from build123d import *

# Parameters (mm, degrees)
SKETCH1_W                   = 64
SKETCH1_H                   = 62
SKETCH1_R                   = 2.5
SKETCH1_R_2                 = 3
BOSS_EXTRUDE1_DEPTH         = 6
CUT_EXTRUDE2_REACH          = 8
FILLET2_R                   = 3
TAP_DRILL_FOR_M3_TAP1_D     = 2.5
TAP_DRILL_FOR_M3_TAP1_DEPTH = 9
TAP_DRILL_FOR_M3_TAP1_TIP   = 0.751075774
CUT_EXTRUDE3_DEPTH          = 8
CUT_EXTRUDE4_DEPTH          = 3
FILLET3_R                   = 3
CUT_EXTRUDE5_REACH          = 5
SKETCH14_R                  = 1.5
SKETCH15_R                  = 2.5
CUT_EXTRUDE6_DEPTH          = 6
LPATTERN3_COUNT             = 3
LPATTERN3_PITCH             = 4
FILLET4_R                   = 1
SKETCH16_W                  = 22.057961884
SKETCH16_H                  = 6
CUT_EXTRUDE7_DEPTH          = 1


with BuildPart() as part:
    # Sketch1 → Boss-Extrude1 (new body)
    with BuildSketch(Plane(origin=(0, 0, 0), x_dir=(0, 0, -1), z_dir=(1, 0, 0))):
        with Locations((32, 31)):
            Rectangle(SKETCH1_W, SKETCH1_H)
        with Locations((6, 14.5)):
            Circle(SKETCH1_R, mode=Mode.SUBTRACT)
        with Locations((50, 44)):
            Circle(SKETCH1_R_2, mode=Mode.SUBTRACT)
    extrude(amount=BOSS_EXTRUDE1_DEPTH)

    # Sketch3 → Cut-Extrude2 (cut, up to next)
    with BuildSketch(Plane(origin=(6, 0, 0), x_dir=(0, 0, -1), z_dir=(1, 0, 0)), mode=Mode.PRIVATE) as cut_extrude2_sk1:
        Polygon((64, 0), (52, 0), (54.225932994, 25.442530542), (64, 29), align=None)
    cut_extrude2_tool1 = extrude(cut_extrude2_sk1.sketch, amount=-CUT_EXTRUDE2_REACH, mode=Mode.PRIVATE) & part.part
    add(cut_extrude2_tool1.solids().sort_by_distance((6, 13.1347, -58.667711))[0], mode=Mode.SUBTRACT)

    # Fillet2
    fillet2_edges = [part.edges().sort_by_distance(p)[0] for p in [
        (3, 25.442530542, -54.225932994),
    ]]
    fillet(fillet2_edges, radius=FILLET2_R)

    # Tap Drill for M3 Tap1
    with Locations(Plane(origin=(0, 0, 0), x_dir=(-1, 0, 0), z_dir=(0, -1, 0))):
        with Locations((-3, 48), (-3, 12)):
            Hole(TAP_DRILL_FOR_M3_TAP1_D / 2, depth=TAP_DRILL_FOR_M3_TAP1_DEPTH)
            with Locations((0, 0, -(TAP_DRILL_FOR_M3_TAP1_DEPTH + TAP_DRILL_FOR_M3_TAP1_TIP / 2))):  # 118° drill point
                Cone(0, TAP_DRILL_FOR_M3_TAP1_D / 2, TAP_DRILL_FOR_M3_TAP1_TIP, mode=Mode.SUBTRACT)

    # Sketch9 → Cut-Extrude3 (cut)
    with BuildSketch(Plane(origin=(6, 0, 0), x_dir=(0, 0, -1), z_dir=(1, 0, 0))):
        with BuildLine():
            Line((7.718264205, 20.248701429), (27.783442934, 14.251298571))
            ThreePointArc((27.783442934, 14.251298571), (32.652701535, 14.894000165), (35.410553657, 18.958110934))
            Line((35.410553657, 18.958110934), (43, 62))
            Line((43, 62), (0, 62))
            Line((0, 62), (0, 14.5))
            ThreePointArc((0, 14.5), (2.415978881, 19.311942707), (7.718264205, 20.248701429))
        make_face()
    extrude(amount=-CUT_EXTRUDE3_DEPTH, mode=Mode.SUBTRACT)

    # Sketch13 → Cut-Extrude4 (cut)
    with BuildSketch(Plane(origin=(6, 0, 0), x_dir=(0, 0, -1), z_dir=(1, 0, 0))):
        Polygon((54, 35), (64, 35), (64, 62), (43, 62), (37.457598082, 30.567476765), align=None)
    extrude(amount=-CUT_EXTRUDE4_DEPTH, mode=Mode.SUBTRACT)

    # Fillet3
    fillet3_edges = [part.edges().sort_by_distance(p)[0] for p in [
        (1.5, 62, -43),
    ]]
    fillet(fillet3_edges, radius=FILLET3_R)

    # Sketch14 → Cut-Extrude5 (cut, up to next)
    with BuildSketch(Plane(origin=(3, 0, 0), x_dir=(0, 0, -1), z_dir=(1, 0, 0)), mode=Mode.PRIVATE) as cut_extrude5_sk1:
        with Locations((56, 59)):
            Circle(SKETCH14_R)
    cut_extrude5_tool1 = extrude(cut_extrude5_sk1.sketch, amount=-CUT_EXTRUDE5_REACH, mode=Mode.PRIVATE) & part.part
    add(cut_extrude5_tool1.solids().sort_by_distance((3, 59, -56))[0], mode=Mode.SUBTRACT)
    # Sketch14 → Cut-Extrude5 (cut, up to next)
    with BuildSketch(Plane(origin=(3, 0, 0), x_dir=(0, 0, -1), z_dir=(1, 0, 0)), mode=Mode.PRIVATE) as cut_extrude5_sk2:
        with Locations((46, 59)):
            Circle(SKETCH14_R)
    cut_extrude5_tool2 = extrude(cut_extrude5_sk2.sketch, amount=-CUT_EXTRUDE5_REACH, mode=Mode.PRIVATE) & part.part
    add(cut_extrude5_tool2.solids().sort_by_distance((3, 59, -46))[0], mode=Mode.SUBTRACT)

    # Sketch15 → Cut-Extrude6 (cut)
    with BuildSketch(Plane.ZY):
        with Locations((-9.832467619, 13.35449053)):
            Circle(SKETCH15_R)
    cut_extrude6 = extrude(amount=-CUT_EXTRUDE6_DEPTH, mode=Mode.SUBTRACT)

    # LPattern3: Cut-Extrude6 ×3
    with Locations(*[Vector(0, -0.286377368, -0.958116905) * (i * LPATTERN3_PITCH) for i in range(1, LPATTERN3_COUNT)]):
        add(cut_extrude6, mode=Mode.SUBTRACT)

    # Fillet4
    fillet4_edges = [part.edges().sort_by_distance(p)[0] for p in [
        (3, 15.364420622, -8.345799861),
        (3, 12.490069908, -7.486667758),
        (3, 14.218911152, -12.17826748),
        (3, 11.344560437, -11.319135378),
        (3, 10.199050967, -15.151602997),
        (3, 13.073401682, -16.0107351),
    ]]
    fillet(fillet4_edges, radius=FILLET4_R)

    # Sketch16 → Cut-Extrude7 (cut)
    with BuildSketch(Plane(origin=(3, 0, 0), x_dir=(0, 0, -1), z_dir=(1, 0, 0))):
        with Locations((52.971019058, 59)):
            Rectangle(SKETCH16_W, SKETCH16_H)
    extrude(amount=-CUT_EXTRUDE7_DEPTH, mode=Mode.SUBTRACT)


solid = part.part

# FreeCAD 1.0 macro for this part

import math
import FreeCAD as App
import Part
import Sketcher
from FreeCAD import Vector
Q = App.Units.Quantity


def edges_at(feature, points):
    """Names of the edges that pass closest to the given points."""
    edges = feature.Shape.Edges
    near = lambda p: min(range(len(edges)), key=lambda i: edges[i].distToShape(Part.Vertex(*p))[0])
    return sorted({f"Edge{near(p) + 1}" for p in points})


def add_polygon(sketch, points):
    """Adds a closed chain of lines whose ends are joined by coincident constraints."""
    first, n = sketch.GeometryCount, len(points)
    for a, b in zip(points, points[1:] + points[:1]):
        sketch.addGeometry(Part.LineSegment(App.Vector(*a, 0), App.Vector(*b, 0)), False)
    for i in range(n):
        sketch.addConstraint(Sketcher.Constraint("Coincident", first + i, 2, first + (i + 1) % n, 1))

doc = App.newDocument("Part")
body = doc.addObject("PartDesign::Body", "Body")

# Sketch on YZ plane
sketch1 = body.newObject("Sketcher::SketchObject", "Sketch")
sketch1.AttachmentSupport = (doc.getObject("YZ_Plane"), [""])
sketch1.MapMode = "FlatFace"
add_polygon(sketch1, [(62, 0), (0, 0), (0, -64), (62, -64)])  # lines 0-3
sketch1.addGeometry(Part.Circle(Vector(14.5, -6, 0), Vector(0, 0, 1), 2.5), False)  # 4
sketch1.addGeometry(Part.Circle(Vector(44, -50, 0), Vector(0, 0, 1), 3), False)  # 5
sketch1.addConstraint([
    Sketcher.Constraint("Horizontal", 0),
    Sketcher.Constraint("Vertical", 1),
    Sketcher.Constraint("Horizontal", 2),
    Sketcher.Constraint("Vertical", 3),
    Sketcher.Constraint("Coincident", 0, 2, -1, 1),
    Sketcher.Constraint("Diameter", 4, Q("5 mm")),
    Sketcher.Constraint("Diameter", 5, Q("6 mm")),
    Sketcher.Constraint("DistanceX", 0, 2, 0, 1, Q("62 mm")),
    Sketcher.Constraint("DistanceY", 1, 2, 1, 1, Q("64 mm")),
    Sketcher.Constraint("DistanceY", 4, 3, -1, 1, Q("6 mm")),
    Sketcher.Constraint("DistanceX", -1, 1, 5, 3, Q("44 mm")),
    Sketcher.Constraint("DistanceY", 5, 3, -1, 1, Q("50 mm")),
    Sketcher.Constraint("DistanceX", -1, 1, 4, 3, Q("14.5 mm")),
])
pad1 = body.newObject("PartDesign::Pad", "Pad")
pad1.Profile = sketch1
pad1.Length = 6

# Sketch on YZ plane
sketch2 = body.newObject("Sketcher::SketchObject", "Sketch001")
sketch2.AttachmentSupport = (doc.getObject("YZ_Plane"), [""])
sketch2.MapMode = "FlatFace"
sketch2.AttachmentOffset = App.Placement(Vector(0, 0, 6), App.Rotation())
add_polygon(sketch2, [(0, -52), (0, -64), (29, -64), (25, -54)])  # lines 0-3
sketch2.addConstraint([
    Sketcher.Constraint("Vertical", 0),
    Sketcher.Constraint("Horizontal", 1),
    Sketcher.Constraint("PointOnObject", 0, 2, -2),
    Sketcher.Constraint("DistanceX", 1, 1, 1, 2, Q("29 mm")),
    Sketcher.Constraint("DistanceY", 0, 2, 0, 1, Q("12 mm")),
    Sketcher.Constraint("Angle", 2, Q("110 deg")),
    Sketcher.Constraint("Angle", 3, Q("175 deg")),
    Sketcher.Constraint("DistanceY", 0, 2, -1, 1, Q("64 mm")),
])
pocket1 = body.newObject("PartDesign::Pocket", "Pocket")
pocket1.Profile = sketch2
pocket1.Type = "UpToFirst"
doc.recompute()

fillet = body.newObject("PartDesign::Fillet", "Fillet")
fillet.Base = (pocket1, edges_at(pocket1, [(3, 25.443, -54.226)]))
fillet.Radius = 3

# Sketch on XZ plane
sketch3 = body.newObject("Sketcher::SketchObject", "Sketch002")
sketch3.AttachmentSupport = (doc.getObject("XZ_Plane"), [""])
sketch3.MapMode = "FlatFace"
sketch3.addGeometry([
    Part.Circle(Vector(3, -48, 0), Vector(0, 0, 1), 1.2),
    Part.Circle(Vector(3, -12, 0), Vector(0, 0, 1), 1.2),
], False)
sketch3.addConstraint([
    Sketcher.Constraint("Equal", 0, 1),
    Sketcher.Constraint("Vertical", 0, 3, 1, 3),
    Sketcher.Constraint("Diameter", 0, Q("2.5 mm")),
    Sketcher.Constraint("DistanceX", -1, 1, 0, 3, Q("3 mm")),
    Sketcher.Constraint("DistanceY", 0, 3, -1, 1, Q("48 mm")),
    Sketcher.Constraint("DistanceY", 1, 3, -1, 1, Q("12 mm")),
])
doc.recompute()
hole = body.newObject("PartDesign::Hole", "Hole")
hole.Profile = sketch3
hole.ThreadType = "None"
hole.Diameter = 2.5
hole.DepthType = "Dimension"
hole.Depth = 9
hole.DrillPoint = "Angled"
hole.DrillPointAngle = 118

# Sketch on YZ plane
sketch4 = body.newObject("Sketcher::SketchObject", "Sketch003")
sketch4.AttachmentSupport = (doc.getObject("YZ_Plane"), [""])
sketch4.MapMode = "FlatFace"
sketch4.AttachmentOffset = App.Placement(Vector(0, 0, 6), App.Rotation())
sketch4.addGeometry([
    Part.LineSegment(Vector(20, -8, 0), Vector(14, -28, 0)),  # 0
    Part.ArcOfCircle(Part.Circle(Vector(20, -30, 0), Vector(0, 0, 1), 6), math.radians(163), math.radians(260)),  # 1
    Part.LineSegment(Vector(19, -35, 0), Vector(62, -43, 0)),  # 2
    Part.LineSegment(Vector(62, -43, 0), Vector(62, 0, 0)),  # 3
    Part.LineSegment(Vector(62, 0, 0), Vector(14, 0, 0)),  # 4
    Part.ArcOfCircle(Part.Circle(Vector(14, -6, 0), Vector(0, 0, 1), 6), math.radians(-17), math.radians(90)),  # 5
], False)
sketch4.addConstraint([
    Sketcher.Constraint("Tangent", 0, 2, 1, 1),
    Sketcher.Constraint("Tangent", 1, 2, 2, 1),
    Sketcher.Constraint("Coincident", 2, 2, 3, 1),
    Sketcher.Constraint("Coincident", 3, 2, 4, 1),
    Sketcher.Constraint("Tangent", 4, 2, 5, 2),
    Sketcher.Constraint("Tangent", 5, 1, 0, 1),
    Sketcher.Constraint("Vertical", 3),
    Sketcher.Constraint("Horizontal", 4),
    Sketcher.Constraint("Equal", 1, 5),
    Sketcher.Constraint("PointOnObject", 3, 2, -1),
    Sketcher.Constraint("Radius", 1, Q("6 mm")),
    Sketcher.Constraint("DistanceY", 3, 1, 3, 2, Q("43 mm")),
    Sketcher.Constraint("Angle", 2, Q("-10 deg")),
    Sketcher.Constraint("DistanceX", 4, 2, 4, 1, Q("47.5 mm")),
    Sketcher.Constraint("DistanceX", -1, 1, 1, 3, Q("20 mm")),
    Sketcher.Constraint("DistanceX", -1, 1, 2, 2, Q("62 mm")),
])
pocket2 = body.newObject("PartDesign::Pocket", "Pocket001")
pocket2.Profile = sketch4
pocket2.Length = 8

# Sketch on YZ plane
sketch5 = body.newObject("Sketcher::SketchObject", "Sketch004")
sketch5.AttachmentSupport = (doc.getObject("YZ_Plane"), [""])
sketch5.MapMode = "FlatFace"
sketch5.AttachmentOffset = App.Placement(Vector(0, 0, 6), App.Rotation())
add_polygon(sketch5, [(35, -54), (35, -64), (62, -64), (62, -43), (31, -37)])  # lines 0-4
sketch5.addConstraint([
    Sketcher.Constraint("Vertical", 0),
    Sketcher.Constraint("Horizontal", 1),
    Sketcher.Constraint("Vertical", 2),
    Sketcher.Constraint("DistanceX", 1, 1, 1, 2, Q("27 mm")),
    Sketcher.Constraint("DistanceY", 0, 2, 0, 1, Q("10 mm")),
    Sketcher.Constraint("DistanceY", 2, 1, 2, 2, Q("21 mm")),
    Sketcher.Constraint("Angle", 3, Q("170 deg")),
    Sketcher.Constraint("Angle", 4, Q("-75 deg")),
    Sketcher.Constraint("DistanceX", -1, 1, 0, 2, Q("35 mm")),
    Sketcher.Constraint("DistanceY", 0, 2, -1, 1, Q("64 mm")),
])
pocket3 = body.newObject("PartDesign::Pocket", "Pocket002")
pocket3.Profile = sketch5
pocket3.Length = 3
doc.recompute()

fillet2 = body.newObject("PartDesign::Fillet", "Fillet001")
fillet2.Base = (pocket3, edges_at(pocket3, [(1.5, 62, -43)]))
fillet2.Radius = 3

# Sketch on YZ plane
sketch6 = body.newObject("Sketcher::SketchObject", "Sketch005")
sketch6.AttachmentSupport = (doc.getObject("YZ_Plane"), [""])
sketch6.MapMode = "FlatFace"
sketch6.AttachmentOffset = App.Placement(Vector(0, 0, 3), App.Rotation())
sketch6.addGeometry(Part.Circle(Vector(59, -56, 0), Vector(0, 0, 1), 1.5), False)
sketch6.addConstraint([
    Sketcher.Constraint("Diameter", 0, Q("3 mm")),
    Sketcher.Constraint("DistanceX", -1, 1, 0, 3, Q("59 mm")),
    Sketcher.Constraint("DistanceY", 0, 3, -1, 1, Q("56 mm")),
])
pocket4 = body.newObject("PartDesign::Pocket", "Pocket003")
pocket4.Profile = sketch6
pocket4.Type = "UpToFirst"

# Sketch on YZ plane
sketch7 = body.newObject("Sketcher::SketchObject", "Sketch006")
sketch7.AttachmentSupport = (doc.getObject("YZ_Plane"), [""])
sketch7.MapMode = "FlatFace"
sketch7.AttachmentOffset = App.Placement(Vector(0, 0, 3), App.Rotation())
sketch7.addGeometry(Part.Circle(Vector(59, -46, 0), Vector(0, 0, 1), 1.5), False)
sketch7.addConstraint([
    Sketcher.Constraint("Diameter", 0, Q("3 mm")),
    Sketcher.Constraint("DistanceX", -1, 1, 0, 3, Q("59 mm")),
    Sketcher.Constraint("DistanceY", 0, 3, -1, 1, Q("46 mm")),
])
pocket5 = body.newObject("PartDesign::Pocket", "Pocket004")
pocket5.Profile = sketch7
pocket5.Type = "UpToFirst"

# Sketch on YZ plane
sketch8 = body.newObject("Sketcher::SketchObject", "Sketch007")
sketch8.AttachmentSupport = (doc.getObject("YZ_Plane"), [""])
sketch8.MapMode = "FlatFace"
sketch8.addGeometry(Part.Circle(Vector(13.4, -9.8, 0), Vector(0, 0, 1), 2.5), False)
sketch8.addConstraint([
    Sketcher.Constraint("Diameter", 0, Q("5 mm")),
    Sketcher.Constraint("DistanceX", -1, 1, 0, 3, Q("13.354491 mm")),
    Sketcher.Constraint("DistanceY", 0, 3, -1, 1, Q("9.832468 mm")),
])
pocket6 = body.newObject("PartDesign::Pocket", "Pocket005")
pocket6.Profile = sketch8
pocket6.Length = 6
pocket6.Reversed = True
doc.recompute()

datumline = body.newObject("PartDesign::Line", "DatumLine")
datumline.Placement = App.Placement(Vector(0, 0, 0), App.Rotation(Vector(0, 0, 1), Vector(0, -0.286377368, -0.958116905)))
linearpattern = body.newObject("PartDesign::LinearPattern", "LinearPattern")
linearpattern.Originals = [pocket6]
linearpattern.Direction = (datumline, [""])
linearpattern.Mode = "offset"
linearpattern.Offset = 4
linearpattern.Occurrences = 3
body.Tip = linearpattern
doc.recompute()

fillet3 = body.newObject("PartDesign::Fillet", "Fillet002")
fillet3.Base = (linearpattern, edges_at(linearpattern, [
    (3, 15.364, -8.346),
    (3, 12.49, -7.487),
    (3, 14.219, -12.178),
    (3, 11.345, -11.319),
    (3, 10.199, -15.152),
    (3, 13.073, -16.011),
]))
fillet3.Radius = 1

# Sketch on YZ plane
sketch9 = body.newObject("Sketcher::SketchObject", "Sketch008")
sketch9.AttachmentSupport = (doc.getObject("YZ_Plane"), [""])
sketch9.MapMode = "FlatFace"
sketch9.AttachmentOffset = App.Placement(Vector(0, 0, 3), App.Rotation())
add_polygon(sketch9, [(62, -42), (56, -42), (56, -64), (62, -64)])  # lines 0-3
sketch9.addConstraint([
    Sketcher.Constraint("Horizontal", 0),
    Sketcher.Constraint("Vertical", 1),
    Sketcher.Constraint("Horizontal", 2),
    Sketcher.Constraint("Vertical", 3),
    Sketcher.Constraint("DistanceX", 0, 2, 0, 1, Q("6 mm")),
    Sketcher.Constraint("DistanceX", -1, 1, 0, 2, Q("56 mm")),
    Sketcher.Constraint("DistanceY", 1, 2, -1, 1, Q("64 mm")),
    Sketcher.Constraint("DistanceY", 1, 2, 1, 1, Q("22.057962 mm")),
])
pocket7 = body.newObject("PartDesign::Pocket", "Pocket006")
pocket7.Profile = sketch9
pocket7.Length = 1

doc.recompute()
